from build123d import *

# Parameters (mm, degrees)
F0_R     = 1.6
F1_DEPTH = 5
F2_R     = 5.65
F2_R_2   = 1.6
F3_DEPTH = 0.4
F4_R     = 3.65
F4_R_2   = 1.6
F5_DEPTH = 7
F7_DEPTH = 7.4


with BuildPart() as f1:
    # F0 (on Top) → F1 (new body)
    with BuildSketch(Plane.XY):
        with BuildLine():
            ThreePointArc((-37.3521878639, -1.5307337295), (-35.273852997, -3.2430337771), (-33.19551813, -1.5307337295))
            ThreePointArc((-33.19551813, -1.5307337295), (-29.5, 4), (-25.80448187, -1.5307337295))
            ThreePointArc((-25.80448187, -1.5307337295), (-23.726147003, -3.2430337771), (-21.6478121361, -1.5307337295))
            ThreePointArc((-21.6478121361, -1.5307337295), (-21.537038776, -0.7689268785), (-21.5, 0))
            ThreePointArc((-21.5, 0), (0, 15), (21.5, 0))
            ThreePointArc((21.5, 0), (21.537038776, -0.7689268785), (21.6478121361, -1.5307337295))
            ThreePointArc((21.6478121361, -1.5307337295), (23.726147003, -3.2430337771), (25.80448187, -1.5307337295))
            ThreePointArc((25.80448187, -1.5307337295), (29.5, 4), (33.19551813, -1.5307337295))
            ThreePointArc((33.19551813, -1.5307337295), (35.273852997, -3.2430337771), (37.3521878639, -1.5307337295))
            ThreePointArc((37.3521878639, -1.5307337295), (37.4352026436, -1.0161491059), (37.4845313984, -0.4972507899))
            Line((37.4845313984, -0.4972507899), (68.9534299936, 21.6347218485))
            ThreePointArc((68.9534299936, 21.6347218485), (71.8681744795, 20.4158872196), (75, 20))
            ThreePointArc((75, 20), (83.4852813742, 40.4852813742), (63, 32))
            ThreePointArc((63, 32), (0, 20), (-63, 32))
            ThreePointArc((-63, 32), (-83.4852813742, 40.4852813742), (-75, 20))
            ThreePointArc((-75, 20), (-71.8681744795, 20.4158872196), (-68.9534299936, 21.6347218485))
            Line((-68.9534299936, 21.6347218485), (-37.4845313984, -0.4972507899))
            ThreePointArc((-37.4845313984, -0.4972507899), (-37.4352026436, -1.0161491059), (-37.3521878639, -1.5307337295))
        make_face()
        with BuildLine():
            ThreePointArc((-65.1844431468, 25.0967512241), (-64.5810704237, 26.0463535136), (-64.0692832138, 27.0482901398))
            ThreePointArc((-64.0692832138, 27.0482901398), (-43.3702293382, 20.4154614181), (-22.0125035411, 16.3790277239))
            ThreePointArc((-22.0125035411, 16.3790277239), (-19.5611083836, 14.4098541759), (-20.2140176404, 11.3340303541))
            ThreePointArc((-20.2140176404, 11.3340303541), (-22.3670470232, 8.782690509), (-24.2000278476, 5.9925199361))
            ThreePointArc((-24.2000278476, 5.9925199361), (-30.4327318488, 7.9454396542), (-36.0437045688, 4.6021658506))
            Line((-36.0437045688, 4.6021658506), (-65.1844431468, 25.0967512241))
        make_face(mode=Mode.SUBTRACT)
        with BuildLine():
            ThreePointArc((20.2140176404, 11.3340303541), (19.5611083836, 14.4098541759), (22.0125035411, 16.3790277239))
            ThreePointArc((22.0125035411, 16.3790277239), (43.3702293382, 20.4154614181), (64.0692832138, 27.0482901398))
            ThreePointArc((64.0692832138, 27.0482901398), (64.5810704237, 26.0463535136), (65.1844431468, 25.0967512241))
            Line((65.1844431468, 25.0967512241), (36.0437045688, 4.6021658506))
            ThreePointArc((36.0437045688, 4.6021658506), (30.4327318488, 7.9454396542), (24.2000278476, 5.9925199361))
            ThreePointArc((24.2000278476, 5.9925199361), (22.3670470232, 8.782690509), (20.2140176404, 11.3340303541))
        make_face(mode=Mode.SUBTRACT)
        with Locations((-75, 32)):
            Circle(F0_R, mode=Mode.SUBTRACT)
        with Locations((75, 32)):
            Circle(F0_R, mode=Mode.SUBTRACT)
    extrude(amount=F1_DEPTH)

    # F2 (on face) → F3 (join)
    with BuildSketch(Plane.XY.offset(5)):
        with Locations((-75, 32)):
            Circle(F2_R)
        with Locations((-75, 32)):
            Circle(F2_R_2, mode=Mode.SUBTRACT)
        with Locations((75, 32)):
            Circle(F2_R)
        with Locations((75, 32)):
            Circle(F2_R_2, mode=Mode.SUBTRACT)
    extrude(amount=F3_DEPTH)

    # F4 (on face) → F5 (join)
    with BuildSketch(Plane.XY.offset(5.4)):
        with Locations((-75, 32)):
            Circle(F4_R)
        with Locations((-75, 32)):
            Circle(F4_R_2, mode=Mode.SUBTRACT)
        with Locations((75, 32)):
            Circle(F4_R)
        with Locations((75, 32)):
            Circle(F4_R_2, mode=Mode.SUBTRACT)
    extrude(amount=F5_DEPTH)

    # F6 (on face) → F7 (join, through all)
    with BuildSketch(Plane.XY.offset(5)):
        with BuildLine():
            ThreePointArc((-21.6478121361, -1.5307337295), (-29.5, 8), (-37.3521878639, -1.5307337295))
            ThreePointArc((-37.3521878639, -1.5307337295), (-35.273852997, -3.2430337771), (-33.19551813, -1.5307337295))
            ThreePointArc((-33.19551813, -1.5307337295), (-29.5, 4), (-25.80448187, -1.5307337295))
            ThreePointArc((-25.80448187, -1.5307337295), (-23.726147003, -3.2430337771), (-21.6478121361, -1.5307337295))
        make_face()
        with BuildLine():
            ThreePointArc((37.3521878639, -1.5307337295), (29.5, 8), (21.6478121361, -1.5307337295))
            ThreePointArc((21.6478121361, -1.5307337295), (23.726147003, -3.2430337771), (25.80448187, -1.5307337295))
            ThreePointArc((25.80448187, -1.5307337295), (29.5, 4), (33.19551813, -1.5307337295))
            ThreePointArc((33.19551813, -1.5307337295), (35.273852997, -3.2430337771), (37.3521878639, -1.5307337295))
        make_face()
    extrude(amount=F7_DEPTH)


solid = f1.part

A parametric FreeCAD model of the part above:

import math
import FreeCAD as App
import Part
import Sketcher

doc = App.newDocument("Part")
body = doc.addObject("PartDesign::Body", "Body")

sketch1 = body.newObject("Sketcher::SketchObject", "Sketch")
sketch1.AttachmentSupport = (doc.getObject("XY_Plane"), [""])
sketch1.MapMode = "FlatFace"
sketch1.addGeometry([
    Part.ArcOfCircle(Part.Circle(App.Vector(-35.3, -1.1, 0), App.Vector(0, 0, 1), 2.1), math.radians(-169), math.radians(-11)),
    Part.ArcOfCircle(Part.Circle(App.Vector(-29.5, 0, 0), App.Vector(0, 0, 1), 4), math.radians(-22), math.radians(203)),
    Part.ArcOfCircle(Part.Circle(App.Vector(-23.7, -1.1, 0), App.Vector(0, 0, 1), 2.1), math.radians(-169), math.radians(-11)),
    Part.ArcOfCircle(Part.Circle(App.Vector(-29.5, 0, 0), App.Vector(0, 0, 1), 8), math.radians(-11.03), math.radians(0)),
    Part.ArcOfCircle(Part.Circle(App.Vector(0, -7.9, 0), App.Vector(0, 0, 1), 22.9), math.radians(20), math.radians(160)),
    Part.ArcOfCircle(Part.Circle(App.Vector(29.5, 0, 0), App.Vector(0, 0, 1), 8), math.radians(-180), math.radians(-168.97)),
    Part.ArcOfCircle(Part.Circle(App.Vector(23.7, -1.1, 0), App.Vector(0, 0, 1), 2.1), math.radians(-169), math.radians(-11)),
    Part.ArcOfCircle(Part.Circle(App.Vector(29.5, 0, 0), App.Vector(0, 0, 1), 4), math.radians(-22), math.radians(202)),
    Part.ArcOfCircle(Part.Circle(App.Vector(35.3, -1.1, 0), App.Vector(0, 0, 1), 2.1), math.radians(-169), math.radians(-11)),
    Part.ArcOfCircle(Part.Circle(App.Vector(29.5, 0, 0), App.Vector(0, 0, 1), 8), math.radians(-11.03), math.radians(-3.56)),
    Part.LineSegment(App.Vector(37.5, -0.5, 0), App.Vector(69, 21.6, 0)),
    Part.ArcOfCircle(Part.Circle(App.Vector(75, 32, 0), App.Vector(0, 0, 1), 12), math.radians(-120), math.radians(-90)),
    Part.ArcOfCircle(Part.Circle(App.Vector(75, 32, 0), App.Vector(0, 0, 1), 12), math.radians(-90), math.radians(180)),
    Part.ArcOfCircle(Part.Circle(App.Vector(0, 191.4, 0), App.Vector(0, 0, 1), 171.4), math.radians(-112), math.radians(-68)),
    Part.ArcOfCircle(Part.Circle(App.Vector(-75, 32, 0), App.Vector(0, 0, 1), 12), math.radians(0), math.radians(270)),
    Part.ArcOfCircle(Part.Circle(App.Vector(-75, 32, 0), App.Vector(0, 0, 1), 12), math.radians(-90), math.radians(-60)),
    Part.LineSegment(App.Vector(-69, 21.6, 0), App.Vector(-37.5, -0.5, 0)),
    Part.ArcOfCircle(Part.Circle(App.Vector(-29.5, 0, 0), App.Vector(0, 0, 1), 8), math.radians(-176.44), math.radians(-168.97)),
    Part.LineSegment(App.Vector(-36, 4.6, 0), App.Vector(-65.2, 25.1, 0)),
    Part.ArcOfCircle(Part.Circle(App.Vector(-75, 32, 0), App.Vector(0, 0, 1), 12), math.radians(-35.12), math.radians(-24.37)),
    Part.ArcOfCircle(Part.Circle(App.Vector(0, 191.4, 0), App.Vector(0, 0, 1), 176.4), math.radians(-111.3), math.radians(-97.17)),
    Part.ArcOfCircle(Part.Circle(App.Vector(-22.4, 13.4, 0), App.Vector(0, 0, 1), 3), math.radians(-44), math.radians(83)),
    Part.ArcOfCircle(Part.Circle(App.Vector(0, -7.9, 0), App.Vector(0, 0, 1), 27.9), math.radians(136.41), math.radians(150.13)),
    Part.ArcOfCircle(Part.Circle(App.Vector(-29.5, 0, 0), App.Vector(0, 0, 1), 8), math.radians(49), math.radians(145)),
    Part.ArcOfCircle(Part.Circle(App.Vector(0, -7.9, 0), App.Vector(0, 0, 1), 27.9), math.radians(29.87), math.radians(43.59)),
    Part.ArcOfCircle(Part.Circle(App.Vector(22.4, 13.4, 0), App.Vector(0, 0, 1), 3), math.radians(97), math.radians(224)),
    Part.ArcOfCircle(Part.Circle(App.Vector(0, 191.4, 0), App.Vector(0, 0, 1), 176.4), math.radians(-82.83), math.radians(-68.7)),
    Part.ArcOfCircle(Part.Circle(App.Vector(75, 32, 0), App.Vector(0, 0, 1), 12), math.radians(-155.63), math.radians(-144.88)),
    Part.LineSegment(App.Vector(65.2, 25.1, 0), App.Vector(36, 4.6, 0)),
    Part.ArcOfCircle(Part.Circle(App.Vector(29.5, 0, 0), App.Vector(0, 0, 1), 8), math.radians(35), math.radians(131)),
    Part.Circle(App.Vector(-75, 32, 0), App.Vector(0, 0, 1), 1.6),
    Part.Circle(App.Vector(75, 32, 0), App.Vector(0, 0, 1), 1.6),
], False)
sketch1.addConstraint([
    Sketcher.Constraint("Coincident", 0, 2, 1, 2),
    Sketcher.Constraint("Coincident", 1, 1, 2, 1),
    Sketcher.Constraint("Tangent", 2, 2, 3, 1),
    Sketcher.Constraint("Coincident", 3, 2, 4, 2),
    Sketcher.Constraint("Coincident", 4, 1, 5, 1),
    Sketcher.Constraint("Tangent", 5, 2, 6, 1),
    Sketcher.Constraint("Coincident", 6, 2, 7, 2),
    Sketcher.Constraint("Coincident", 7, 1, 8, 1),
    Sketcher.Constraint("Tangent", 8, 2, 9, 1),
    Sketcher.Constraint("Coincident", 9, 2, 10, 1),
    Sketcher.Constraint("Coincident", 10, 2, 11, 1),
    Sketcher.Constraint("Tangent", 11, 2, 12, 1),
    Sketcher.Constraint("Coincident", 12, 2, 13, 2),
    Sketcher.Constraint("Coincident", 13, 1, 14, 1),
    Sketcher.Constraint("Tangent", 14, 2, 15, 1),
    Sketcher.Constraint("Coincident", 15, 2, 16, 1),
    Sketcher.Constraint("Coincident", 16, 2, 17, 1),
    Sketcher.Constraint("Tangent", 17, 2, 0, 1),
    Sketcher.Constraint("Coincident", 18, 2, 19, 1),
    Sketcher.Constraint("Coincident", 19, 2, 20, 1),
    Sketcher.Constraint("Tangent", 20, 2, 21, 2),
    Sketcher.Constraint("Tangent", 21, 1, 22, 1),
    Sketcher.Constraint("Coincident", 22, 2, 23, 1),
    Sketcher.Constraint("Coincident", 23, 2, 18, 1),
    Sketcher.Constraint("Tangent", 24, 2, 25, 2),
    Sketcher.Constraint("Tangent", 25, 1, 26, 1),
    Sketcher.Constraint("Coincident", 26, 2, 27, 1),
    Sketcher.Constraint("Coincident", 27, 2, 28, 1),
    Sketcher.Constraint("Coincident", 28, 2, 29, 1),
    Sketcher.Constraint("Coincident", 29, 2, 24, 1),
    Sketcher.Constraint("Coincident", 3, 3, 1, 3),
    Sketcher.Constraint("Coincident", 7, 3, 5, 3),
    Sketcher.Constraint("Coincident", 9, 3, 5, 3),
    Sketcher.Constraint("Coincident", 17, 3, 1, 3),
    Sketcher.Constraint("Coincident", 19, 3, 14, 3),
    Sketcher.Constraint("Coincident", 20, 3, 13, 3),
    Sketcher.Constraint("Coincident", 22, 3, 4, 3),
    Sketcher.Constraint("Coincident", 23, 3, 1, 3),
    Sketcher.Constraint("Coincident", 24, 3, 4, 3),
    Sketcher.Constraint("Coincident", 26, 3, 13, 3),
    Sketcher.Constraint("Coincident", 27, 3, 11, 3),
    Sketcher.Constraint("Coincident", 29, 3, 5, 3),
    Sketcher.Constraint("Coincident", 30, 3, 14, 3),
    Sketcher.Constraint("Coincident", 31, 3, 11, 3),
    Sketcher.Constraint("Equal", 0, 2),
    Sketcher.Constraint("Equal", 3, 5),
    Sketcher.Constraint("Equal", 2, 6),
    Sketcher.Constraint("Equal", 1, 7),
    Sketcher.Constraint("Equal", 6, 8),
    Sketcher.Constraint("Equal", 5, 9),
    Sketcher.Constraint("Equal", 11, 12),
    Sketcher.Constraint("Equal", 12, 14),
    Sketcher.Constraint("Equal", 14, 15),
    Sketcher.Constraint("Equal", 9, 17),
    Sketcher.Constraint("Equal", 15, 19),
    Sketcher.Constraint("Equal", 17, 23),
    Sketcher.Constraint("Equal", 22, 24),
    Sketcher.Constraint("Equal", 21, 25),
    Sketcher.Constraint("Equal", 20, 26),
    Sketcher.Constraint("Equal", 19, 27),
    Sketcher.Constraint("Equal", 23, 29),
    Sketcher.Constraint("Equal", 30, 31),
    Sketcher.Constraint("Symmetric", 1, 3, 5, 3, -1, 1),
    Sketcher.Constraint("Symmetric", 2, 3, 6, 3, -2),
    Sketcher.Constraint("Symmetric", 11, 3, 14, 3, -2),
    Sketcher.Constraint("Symmetric", 21, 3, 25, 3, -2),
    Sketcher.Constraint("PointOnObject", 3, 2, -1),
    Sketcher.Constraint("Parallel", 16, 18),
    Sketcher.Constraint("Parallel", 10, 28),
    Sketcher.Constraint("Horizontal", 0, 3, 2, 3),
    Sketcher.Constraint("Horizontal", 6, 3, 8, 3),
    Sketcher.Constraint("Horizontal", 1, 1, 2, 2),
    Sketcher.Constraint("Horizontal", 31, 3, 12, 2),
    Sketcher.Constraint("Horizontal", 10, 2, 15, 2),
    Sketcher.Constraint("Horizontal", 9, 2, 16, 2),
    Sketcher.Constraint("Horizontal", 18, 2, 27, 2),
    Sketcher.Constraint("Vertical", 31, 3, 11, 2),
    Sketcher.Constraint("Vertical", 30, 3, 14, 2),
    Sketcher.Constraint("Radius", 1, 4.0),
    Sketcher.Constraint("Radius", 3, 8.0),
    Sketcher.Constraint("Radius", 11, 12.0),
    Sketcher.Constraint("Radius", 21, 3.0),
    Sketcher.Constraint("Diameter", 30, 3.2),
    Sketcher.Constraint("DistanceX", -1, 1, 11, 3, 75.0),
    Sketcher.Constraint("DistanceY", -1, 1, 11, 3, 32.0),
    Sketcher.Constraint("Radius", 13, 171.375),
    Sketcher.Constraint("Radius", 20, 176.375),
    Sketcher.Constraint("DistanceX", 1, 3, 5, 3, 59.0),
    Sketcher.Constraint("Radius", 0, 2.117458),
    Sketcher.Constraint("Radius", 4, 22.908333),
    Sketcher.Constraint("Radius", 22, 27.908333),
    Sketcher.Constraint("DistanceX", 9, 2, 10, 2, 31.468899),
    Sketcher.Constraint("DistanceY", 17, 2, 23, 2, 6.1329),
    Sketcher.Constraint("DistanceX", -1, 1, 9, 2, 37.484531),
])
pad1 = body.newObject("PartDesign::Pad", "Pad")
pad1.Profile = sketch1
pad1.Length = 5

sketch2 = body.newObject("Sketcher::SketchObject", "Sketch001")
sketch2.AttachmentSupport = (doc.getObject("XY_Plane"), [""])
sketch2.MapMode = "FlatFace"
sketch2.AttachmentOffset = App.Placement(App.Vector(0, 0, 5), App.Rotation())
sketch2.addGeometry([
    Part.Circle(App.Vector(-75, 32, 0), App.Vector(0, 0, 1), 5.7),
    Part.Circle(App.Vector(-75, 32, 0), App.Vector(0, 0, 1), 1.6),
    Part.Circle(App.Vector(75, 32, 0), App.Vector(0, 0, 1), 5.7),
    Part.Circle(App.Vector(75, 32, 0), App.Vector(0, 0, 1), 1.6),
], False)
sketch2.addConstraint([
    Sketcher.Constraint("Coincident", 1, 3, 0, 3),
    Sketcher.Constraint("Coincident", 3, 3, 2, 3),
    Sketcher.Constraint("Equal", 0, 2),
    Sketcher.Constraint("Equal", 1, 3),
    Sketcher.Constraint("Symmetric", 0, 3, 2, 3, -2),
    Sketcher.Constraint("Diameter", 0, 11.3),
    Sketcher.Constraint("Diameter", 1, 3.2),
    Sketcher.Constraint("DistanceX", 0, 3, -1, 1, 75.0),
    Sketcher.Constraint("DistanceY", -1, 1, 0, 3, 32.0),
])
pad2 = body.newObject("PartDesign::Pad", "Pad001")
pad2.Profile = sketch2
pad2.Length = 0.4

sketch3 = body.newObject("Sketcher::SketchObject", "Sketch002")
sketch3.AttachmentSupport = (doc.getObject("XY_Plane"), [""])
sketch3.MapMode = "FlatFace"
sketch3.AttachmentOffset = App.Placement(App.Vector(0, 0, 5.4), App.Rotation())
sketch3.addGeometry([
    Part.Circle(App.Vector(-75, 32, 0), App.Vector(0, 0, 1), 3.6),
    Part.Circle(App.Vector(-75, 32, 0), App.Vector(0, 0, 1), 1.6),
    Part.Circle(App.Vector(75, 32, 0), App.Vector(0, 0, 1), 3.6),
    Part.Circle(App.Vector(75, 32, 0), App.Vector(0, 0, 1), 1.6),
], False)
sketch3.addConstraint([
    Sketcher.Constraint("Coincident", 1, 3, 0, 3),
    Sketcher.Constraint("Coincident", 3, 3, 2, 3),
    Sketcher.Constraint("Equal", 0, 2),
    Sketcher.Constraint("Equal", 1, 3),
    Sketcher.Constraint("Symmetric", 0, 3, 2, 3, -2),
    Sketcher.Constraint("Diameter", 0, 7.3),
    Sketcher.Constraint("Diameter", 1, 3.2),
    Sketcher.Constraint("DistanceX", 0, 3, -1, 1, 75.0),
    Sketcher.Constraint("DistanceY", -1, 1, 0, 3, 32.0),
])
pad3 = body.newObject("PartDesign::Pad", "Pad002")
pad3.Profile = sketch3
pad3.Length = 7

sketch4 = body.newObject("Sketcher::SketchObject", "Sketch003")
sketch4.AttachmentSupport = (doc.getObject("XY_Plane"), [""])
sketch4.MapMode = "FlatFace"
sketch4.AttachmentOffset = App.Placement(App.Vector(0, 0, 5), App.Rotation())
sketch4.addGeometry([
    Part.ArcOfCircle(Part.Circle(App.Vector(-29.5, 0, 0), App.Vector(0, 0, 1), 8), math.radians(-11), math.radians(191)),
    Part.ArcOfCircle(Part.Circle(App.Vector(-35.3, -1.1, 0), App.Vector(0, 0, 1), 2.1), math.radians(-169), math.radians(-11)),
    Part.ArcOfCircle(Part.Circle(App.Vector(-29.5, 0, 0), App.Vector(0, 0, 1), 4), math.radians(-22), math.radians(203)),
    Part.ArcOfCircle(Part.Circle(App.Vector(-23.7, -1.1, 0), App.Vector(0, 0, 1), 2.1), math.radians(-169), math.radians(-11)),
    Part.ArcOfCircle(Part.Circle(App.Vector(29.5, 0, 0), App.Vector(0, 0, 1), 8), math.radians(-11), math.radians(191)),
    Part.ArcOfCircle(Part.Circle(App.Vector(23.7, -1.1, 0), App.Vector(0, 0, 1), 2.1), math.radians(-169), math.radians(-11)),
    Part.ArcOfCircle(Part.Circle(App.Vector(29.5, 0, 0), App.Vector(0, 0, 1), 4), math.radians(-22), math.radians(202)),
    Part.ArcOfCircle(Part.Circle(App.Vector(35.3, -1.1, 0), App.Vector(0, 0, 1), 2.1), math.radians(-169), math.radians(-11)),
], False)
sketch4.addConstraint([
    Sketcher.Constraint("Tangent", 0, 2, 1, 1),
    Sketcher.Constraint("Coincident", 1, 2, 2, 2),
    Sketcher.Constraint("Coincident", 2, 1, 3, 1),
    Sketcher.Constraint("Tangent", 3, 2, 0, 1),
    Sketcher.Constraint("Tangent", 4, 2, 5, 1),
    Sketcher.Constraint("Coincident", 5, 2, 6, 2),
    Sketcher.Constraint("Coincident", 6, 1, 7, 1),
    Sketcher.Constraint("Tangent", 7, 2, 4, 1),
    Sketcher.Constraint("Coincident", 2, 3, 0, 3),
    Sketcher.Constraint("Coincident", 6, 3, 4, 3),
    Sketcher.Constraint("Equal", 1, 3),
    Sketcher.Constraint("Equal", 0, 4),
    Sketcher.Constraint("Equal", 3, 5),
    Sketcher.Constraint("Equal", 2, 6),
    Sketcher.Constraint("Equal", 5, 7),
    Sketcher.Constraint("Symmetric", 0, 3, 4, 3, -1, 1),
    Sketcher.Constraint("Symmetric", 3, 3, 5, 3, -2),
    Sketcher.Constraint("Horizontal", 1, 3, 3, 3),
    Sketcher.Constraint("Horizontal", 5, 3, 7, 3),
    Sketcher.Constraint("Horizontal", 0, 2, 1, 2),
    Sketcher.Constraint("Radius", 0, 8.0),
    Sketcher.Constraint("Radius", 2, 4.0),
    Sketcher.Constraint("DistanceX", 0, 3, 4, 3, 59.0),
    Sketcher.Constraint("Radius", 1, 2.117458),
])
pad4 = body.newObject("PartDesign::Pad", "Pad003")
pad4.Profile = sketch4
pad4.Length = 7.4

doc.recompute()
